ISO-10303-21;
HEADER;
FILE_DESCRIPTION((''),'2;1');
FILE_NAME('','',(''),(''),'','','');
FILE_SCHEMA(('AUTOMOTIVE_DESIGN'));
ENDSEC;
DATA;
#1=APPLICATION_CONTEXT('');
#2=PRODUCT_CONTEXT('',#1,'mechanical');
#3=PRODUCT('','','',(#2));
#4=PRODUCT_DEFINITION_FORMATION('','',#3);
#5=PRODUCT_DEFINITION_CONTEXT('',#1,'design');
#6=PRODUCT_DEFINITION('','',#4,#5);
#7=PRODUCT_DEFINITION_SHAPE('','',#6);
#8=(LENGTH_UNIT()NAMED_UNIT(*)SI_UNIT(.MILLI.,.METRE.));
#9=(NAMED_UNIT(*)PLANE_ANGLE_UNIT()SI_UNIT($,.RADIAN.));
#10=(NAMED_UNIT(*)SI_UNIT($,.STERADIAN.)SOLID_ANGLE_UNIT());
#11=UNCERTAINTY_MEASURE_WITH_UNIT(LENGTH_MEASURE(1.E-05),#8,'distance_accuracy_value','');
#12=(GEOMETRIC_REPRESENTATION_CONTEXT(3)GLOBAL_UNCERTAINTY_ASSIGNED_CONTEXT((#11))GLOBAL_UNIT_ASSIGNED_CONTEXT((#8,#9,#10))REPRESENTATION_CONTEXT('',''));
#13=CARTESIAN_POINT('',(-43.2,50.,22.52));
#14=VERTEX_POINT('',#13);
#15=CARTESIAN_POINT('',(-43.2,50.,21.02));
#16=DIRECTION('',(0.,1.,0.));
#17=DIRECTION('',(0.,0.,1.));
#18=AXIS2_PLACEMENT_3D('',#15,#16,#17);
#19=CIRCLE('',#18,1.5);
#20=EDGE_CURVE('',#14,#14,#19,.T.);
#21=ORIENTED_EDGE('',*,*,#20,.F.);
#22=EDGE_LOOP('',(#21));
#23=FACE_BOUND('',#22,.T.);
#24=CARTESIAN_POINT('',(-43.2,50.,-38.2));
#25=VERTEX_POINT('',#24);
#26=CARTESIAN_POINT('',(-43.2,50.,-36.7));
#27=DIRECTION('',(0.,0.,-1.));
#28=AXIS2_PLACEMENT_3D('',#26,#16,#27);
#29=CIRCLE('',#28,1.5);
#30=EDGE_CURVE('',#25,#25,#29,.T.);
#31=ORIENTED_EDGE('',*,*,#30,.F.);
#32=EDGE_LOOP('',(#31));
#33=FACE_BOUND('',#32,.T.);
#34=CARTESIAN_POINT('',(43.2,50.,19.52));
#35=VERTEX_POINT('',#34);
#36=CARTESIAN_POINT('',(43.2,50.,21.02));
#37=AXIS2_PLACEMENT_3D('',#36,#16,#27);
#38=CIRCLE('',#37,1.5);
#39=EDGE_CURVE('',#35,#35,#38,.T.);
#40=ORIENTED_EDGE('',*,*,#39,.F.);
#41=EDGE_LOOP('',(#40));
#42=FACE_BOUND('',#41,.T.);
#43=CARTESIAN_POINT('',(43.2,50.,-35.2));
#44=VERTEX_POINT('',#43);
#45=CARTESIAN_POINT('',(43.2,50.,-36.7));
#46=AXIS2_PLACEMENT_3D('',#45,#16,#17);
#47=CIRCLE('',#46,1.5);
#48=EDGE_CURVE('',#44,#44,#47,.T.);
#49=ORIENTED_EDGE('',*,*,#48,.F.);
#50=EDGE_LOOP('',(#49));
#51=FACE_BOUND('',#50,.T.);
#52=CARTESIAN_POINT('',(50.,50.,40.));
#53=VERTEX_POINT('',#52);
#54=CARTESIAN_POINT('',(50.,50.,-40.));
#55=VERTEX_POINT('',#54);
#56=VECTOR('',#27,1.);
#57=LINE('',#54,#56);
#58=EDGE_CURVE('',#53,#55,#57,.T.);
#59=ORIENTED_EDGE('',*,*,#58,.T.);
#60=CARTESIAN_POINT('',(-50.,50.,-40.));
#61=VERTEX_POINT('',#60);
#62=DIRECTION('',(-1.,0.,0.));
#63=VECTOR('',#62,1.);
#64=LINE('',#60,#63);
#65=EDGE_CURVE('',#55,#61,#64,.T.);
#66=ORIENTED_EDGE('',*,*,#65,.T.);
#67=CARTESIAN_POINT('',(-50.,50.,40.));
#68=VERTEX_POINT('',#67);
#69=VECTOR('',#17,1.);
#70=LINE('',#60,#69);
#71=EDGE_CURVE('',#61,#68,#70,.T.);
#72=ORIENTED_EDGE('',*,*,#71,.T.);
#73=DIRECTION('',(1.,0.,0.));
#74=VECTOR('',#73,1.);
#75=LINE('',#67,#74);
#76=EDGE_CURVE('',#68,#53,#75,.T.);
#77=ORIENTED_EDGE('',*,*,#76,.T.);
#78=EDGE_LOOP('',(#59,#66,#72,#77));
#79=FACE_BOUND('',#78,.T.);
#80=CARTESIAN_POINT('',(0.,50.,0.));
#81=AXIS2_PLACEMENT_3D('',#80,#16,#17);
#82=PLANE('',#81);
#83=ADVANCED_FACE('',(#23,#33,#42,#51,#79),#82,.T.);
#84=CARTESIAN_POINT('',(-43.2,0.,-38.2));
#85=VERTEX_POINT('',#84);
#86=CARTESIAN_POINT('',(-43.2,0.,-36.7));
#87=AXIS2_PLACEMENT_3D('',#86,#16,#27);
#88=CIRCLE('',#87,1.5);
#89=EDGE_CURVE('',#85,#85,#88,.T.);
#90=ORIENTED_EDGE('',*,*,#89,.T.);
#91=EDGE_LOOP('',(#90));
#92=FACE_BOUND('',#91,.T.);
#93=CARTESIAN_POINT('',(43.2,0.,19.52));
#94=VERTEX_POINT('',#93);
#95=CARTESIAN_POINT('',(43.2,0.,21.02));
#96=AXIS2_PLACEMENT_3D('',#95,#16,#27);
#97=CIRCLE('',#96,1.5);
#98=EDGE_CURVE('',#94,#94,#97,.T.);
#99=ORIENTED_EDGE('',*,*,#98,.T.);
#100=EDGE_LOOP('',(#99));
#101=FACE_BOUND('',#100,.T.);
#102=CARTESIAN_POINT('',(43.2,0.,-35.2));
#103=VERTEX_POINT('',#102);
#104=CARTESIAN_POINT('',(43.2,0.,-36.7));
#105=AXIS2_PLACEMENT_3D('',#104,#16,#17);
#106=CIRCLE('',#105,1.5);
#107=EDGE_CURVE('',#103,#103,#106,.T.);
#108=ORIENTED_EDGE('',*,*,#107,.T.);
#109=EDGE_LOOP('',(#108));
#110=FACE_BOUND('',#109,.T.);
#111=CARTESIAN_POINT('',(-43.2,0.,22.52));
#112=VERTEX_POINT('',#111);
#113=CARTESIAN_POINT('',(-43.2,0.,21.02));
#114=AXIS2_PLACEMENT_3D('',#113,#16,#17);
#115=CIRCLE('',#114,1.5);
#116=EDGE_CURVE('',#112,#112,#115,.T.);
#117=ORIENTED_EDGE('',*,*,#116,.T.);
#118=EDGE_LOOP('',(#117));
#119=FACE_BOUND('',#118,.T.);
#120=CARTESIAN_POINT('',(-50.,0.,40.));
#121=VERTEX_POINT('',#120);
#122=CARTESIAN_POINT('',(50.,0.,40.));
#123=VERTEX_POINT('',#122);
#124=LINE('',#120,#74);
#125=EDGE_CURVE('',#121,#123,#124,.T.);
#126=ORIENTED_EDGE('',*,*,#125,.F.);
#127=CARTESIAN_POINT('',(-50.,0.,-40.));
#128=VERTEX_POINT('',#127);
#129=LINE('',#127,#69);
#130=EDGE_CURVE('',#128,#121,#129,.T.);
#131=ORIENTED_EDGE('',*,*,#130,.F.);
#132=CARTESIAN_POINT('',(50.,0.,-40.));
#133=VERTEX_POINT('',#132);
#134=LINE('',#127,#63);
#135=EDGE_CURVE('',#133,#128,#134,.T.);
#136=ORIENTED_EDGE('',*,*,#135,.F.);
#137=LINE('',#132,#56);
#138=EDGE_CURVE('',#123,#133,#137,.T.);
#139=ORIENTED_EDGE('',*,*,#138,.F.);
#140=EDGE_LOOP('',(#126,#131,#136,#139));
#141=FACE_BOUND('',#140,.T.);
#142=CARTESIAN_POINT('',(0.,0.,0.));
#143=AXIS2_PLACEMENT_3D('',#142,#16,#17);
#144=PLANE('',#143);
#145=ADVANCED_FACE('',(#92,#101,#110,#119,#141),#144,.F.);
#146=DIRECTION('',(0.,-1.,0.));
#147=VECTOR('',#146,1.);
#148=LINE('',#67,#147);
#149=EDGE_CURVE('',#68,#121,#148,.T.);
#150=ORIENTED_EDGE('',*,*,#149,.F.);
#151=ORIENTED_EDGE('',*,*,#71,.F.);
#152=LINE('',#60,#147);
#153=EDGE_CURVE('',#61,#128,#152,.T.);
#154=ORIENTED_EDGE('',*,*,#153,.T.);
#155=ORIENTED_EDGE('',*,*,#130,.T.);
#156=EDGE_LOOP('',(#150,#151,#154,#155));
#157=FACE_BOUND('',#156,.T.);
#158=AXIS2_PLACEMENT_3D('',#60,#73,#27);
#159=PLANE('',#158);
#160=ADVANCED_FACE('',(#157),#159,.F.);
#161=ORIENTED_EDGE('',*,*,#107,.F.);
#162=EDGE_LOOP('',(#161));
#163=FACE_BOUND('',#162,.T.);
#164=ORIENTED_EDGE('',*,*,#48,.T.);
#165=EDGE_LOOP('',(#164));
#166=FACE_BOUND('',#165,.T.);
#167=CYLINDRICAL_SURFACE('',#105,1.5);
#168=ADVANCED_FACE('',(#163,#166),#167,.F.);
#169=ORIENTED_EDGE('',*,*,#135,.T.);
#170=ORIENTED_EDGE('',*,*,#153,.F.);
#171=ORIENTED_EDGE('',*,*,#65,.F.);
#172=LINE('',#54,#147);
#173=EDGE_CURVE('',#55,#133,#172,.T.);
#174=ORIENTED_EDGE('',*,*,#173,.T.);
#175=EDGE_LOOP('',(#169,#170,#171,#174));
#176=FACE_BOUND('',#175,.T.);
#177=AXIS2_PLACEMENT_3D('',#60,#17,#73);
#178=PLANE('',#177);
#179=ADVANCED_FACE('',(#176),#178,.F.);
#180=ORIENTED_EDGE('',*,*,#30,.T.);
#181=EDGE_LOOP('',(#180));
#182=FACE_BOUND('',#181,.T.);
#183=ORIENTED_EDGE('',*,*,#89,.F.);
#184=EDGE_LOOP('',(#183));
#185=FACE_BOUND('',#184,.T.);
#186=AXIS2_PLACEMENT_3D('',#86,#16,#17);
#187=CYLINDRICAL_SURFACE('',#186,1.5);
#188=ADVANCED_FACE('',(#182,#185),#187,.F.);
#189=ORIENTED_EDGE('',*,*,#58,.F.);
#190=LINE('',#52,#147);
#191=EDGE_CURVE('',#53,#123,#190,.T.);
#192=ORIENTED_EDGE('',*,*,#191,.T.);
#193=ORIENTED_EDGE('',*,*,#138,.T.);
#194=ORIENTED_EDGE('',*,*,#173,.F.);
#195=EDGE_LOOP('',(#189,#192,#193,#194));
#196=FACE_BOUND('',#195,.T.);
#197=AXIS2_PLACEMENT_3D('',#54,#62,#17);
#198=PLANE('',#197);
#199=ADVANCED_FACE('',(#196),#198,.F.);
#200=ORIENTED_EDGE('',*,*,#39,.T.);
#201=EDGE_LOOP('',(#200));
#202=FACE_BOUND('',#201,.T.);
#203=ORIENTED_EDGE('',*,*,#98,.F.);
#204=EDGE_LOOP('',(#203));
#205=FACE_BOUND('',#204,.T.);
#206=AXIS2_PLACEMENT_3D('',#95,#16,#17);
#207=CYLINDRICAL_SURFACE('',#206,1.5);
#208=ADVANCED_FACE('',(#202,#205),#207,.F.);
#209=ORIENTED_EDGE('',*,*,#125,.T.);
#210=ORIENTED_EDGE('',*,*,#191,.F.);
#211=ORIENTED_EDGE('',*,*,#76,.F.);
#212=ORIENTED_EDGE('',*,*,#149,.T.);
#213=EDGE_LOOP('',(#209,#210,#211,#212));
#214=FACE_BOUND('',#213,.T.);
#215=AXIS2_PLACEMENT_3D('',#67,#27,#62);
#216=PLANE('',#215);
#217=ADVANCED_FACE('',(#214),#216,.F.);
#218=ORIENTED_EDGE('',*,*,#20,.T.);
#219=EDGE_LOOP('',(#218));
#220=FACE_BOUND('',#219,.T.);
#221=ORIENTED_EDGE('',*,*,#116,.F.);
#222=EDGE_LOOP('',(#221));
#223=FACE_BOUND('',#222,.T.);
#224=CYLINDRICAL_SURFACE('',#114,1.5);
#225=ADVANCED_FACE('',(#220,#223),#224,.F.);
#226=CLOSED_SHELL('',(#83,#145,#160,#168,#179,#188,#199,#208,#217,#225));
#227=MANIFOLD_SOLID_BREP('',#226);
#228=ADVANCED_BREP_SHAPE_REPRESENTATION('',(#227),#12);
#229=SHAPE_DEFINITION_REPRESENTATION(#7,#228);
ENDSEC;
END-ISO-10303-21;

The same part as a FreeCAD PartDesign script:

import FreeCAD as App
import Part
import Sketcher
from FreeCAD import Vector
Q = App.Units.Quantity

doc = App.newDocument("Part")
params = doc.addObject("Spreadsheet::Sheet", "Params")
for row, (alias, value) in enumerate([
    ("sketch1_width", "100 mm"),
    ("sketch1_height", "80 mm"),
    ("pad1_length", "50 mm"),
    ("sketch2_diameter", "3 mm"),
    ("pocket1_length", "50 mm"),
], start=1):
    params.set(f"A{row}", alias)
    params.set(f"B{row}", "=" + value)
    params.setAlias(f"B{row}", alias)

body = doc.addObject("PartDesign::Body", "Body")

# Sketch on XZ plane
sketch1 = body.newObject("Sketcher::SketchObject", "Sketch")
sketch1.AttachmentSupport = (doc.getObject("XZ_Plane"), [""])
sketch1.MapMode = "FlatFace"
sketch1.addGeometry([
    Part.LineSegment(Vector(-50, -40, 0), Vector(-50, 40, 0)),
    Part.LineSegment(Vector(-50, 40, 0), Vector(50, 40, 0)),
    Part.LineSegment(Vector(50, 40, 0), Vector(50, -40, 0)),
    Part.LineSegment(Vector(50, -40, 0), Vector(-50, -40, 0)),
], False)
sketch1.addConstraint([
    Sketcher.Constraint("Coincident", 0, 2, 1, 1),
    Sketcher.Constraint("Coincident", 1, 2, 2, 1),
    Sketcher.Constraint("Coincident", 2, 2, 3, 1),
    Sketcher.Constraint("Coincident", 3, 2, 0, 1),
    Sketcher.Constraint("Vertical", 0),
    Sketcher.Constraint("Horizontal", 1),
    Sketcher.Constraint("Vertical", 2),
    Sketcher.Constraint("Horizontal", 3),
    Sketcher.Constraint("Symmetric", 0, 2, 2, 2, -1, 1),
    Sketcher.Constraint("DistanceX", 1, 1, 1, 2, Q("100 mm")),
    Sketcher.Constraint("DistanceY", 0, 1, 0, 2, Q("80 mm")),
])
sketch1.setExpression("Constraints[9]", "Params.sketch1_width")
sketch1.setExpression("Constraints[10]", "Params.sketch1_height")
pad1 = body.newObject("PartDesign::Pad", "Pad")
pad1.Profile = sketch1
pad1.setExpression("Length", "Params.pad1_length")
pad1.Reversed = True

# Sketch on XZ plane
sketch2 = body.newObject("Sketcher::SketchObject", "Sketch001")
sketch2.AttachmentSupport = (doc.getObject("XZ_Plane"), [""])
sketch2.MapMode = "FlatFace"
sketch2.AttachmentOffset = App.Placement(Vector(0, 0, -50), App.Rotation())
sketch2.addGeometry([
    Part.Circle(Vector(43.2, -36.7, 0), Vector(0, 0, 1), 1.5),
    Part.Circle(Vector(-43.2, -36.7, 0), Vector(0, 0, 1), 1.5),
    Part.Circle(Vector(43.2, 21, 0), Vector(0, 0, 1), 1.5),
    Part.Circle(Vector(-43.2, 21, 0), Vector(0, 0, 1), 1.5),
], False)
sketch2.addConstraint([
    Sketcher.Constraint("Equal", 0, 1),
    Sketcher.Constraint("Equal", 1, 2),
    Sketcher.Constraint("Equal", 2, 3),
    Sketcher.Constraint("Symmetric", 0, 3, 1, 3, -2),
    Sketcher.Constraint("Symmetric", 2, 3, 3, 3, -2),
    Sketcher.Constraint("Vertical", 0, 3, 2, 3),
    Sketcher.Constraint("Diameter", 0, Q("3 mm")),
    Sketcher.Constraint("DistanceX", -1, 1, 0, 3, Q("43.2 mm")),
    Sketcher.Constraint("DistanceY", 0, 3, -1, 1, Q("36.7 mm")),
    Sketcher.Constraint("DistanceY", -1, 1, 2, 3, Q("21.02 mm")),
])
sketch2.setExpression("Constraints[6]", "Params.sketch2_diameter")
pocket1 = body.newObject("PartDesign::Pocket", "Pocket")
pocket1.Profile = sketch2
pocket1.setExpression("Length", "Params.pocket1_length")
pocket1.Reversed = True

doc.recompute()
